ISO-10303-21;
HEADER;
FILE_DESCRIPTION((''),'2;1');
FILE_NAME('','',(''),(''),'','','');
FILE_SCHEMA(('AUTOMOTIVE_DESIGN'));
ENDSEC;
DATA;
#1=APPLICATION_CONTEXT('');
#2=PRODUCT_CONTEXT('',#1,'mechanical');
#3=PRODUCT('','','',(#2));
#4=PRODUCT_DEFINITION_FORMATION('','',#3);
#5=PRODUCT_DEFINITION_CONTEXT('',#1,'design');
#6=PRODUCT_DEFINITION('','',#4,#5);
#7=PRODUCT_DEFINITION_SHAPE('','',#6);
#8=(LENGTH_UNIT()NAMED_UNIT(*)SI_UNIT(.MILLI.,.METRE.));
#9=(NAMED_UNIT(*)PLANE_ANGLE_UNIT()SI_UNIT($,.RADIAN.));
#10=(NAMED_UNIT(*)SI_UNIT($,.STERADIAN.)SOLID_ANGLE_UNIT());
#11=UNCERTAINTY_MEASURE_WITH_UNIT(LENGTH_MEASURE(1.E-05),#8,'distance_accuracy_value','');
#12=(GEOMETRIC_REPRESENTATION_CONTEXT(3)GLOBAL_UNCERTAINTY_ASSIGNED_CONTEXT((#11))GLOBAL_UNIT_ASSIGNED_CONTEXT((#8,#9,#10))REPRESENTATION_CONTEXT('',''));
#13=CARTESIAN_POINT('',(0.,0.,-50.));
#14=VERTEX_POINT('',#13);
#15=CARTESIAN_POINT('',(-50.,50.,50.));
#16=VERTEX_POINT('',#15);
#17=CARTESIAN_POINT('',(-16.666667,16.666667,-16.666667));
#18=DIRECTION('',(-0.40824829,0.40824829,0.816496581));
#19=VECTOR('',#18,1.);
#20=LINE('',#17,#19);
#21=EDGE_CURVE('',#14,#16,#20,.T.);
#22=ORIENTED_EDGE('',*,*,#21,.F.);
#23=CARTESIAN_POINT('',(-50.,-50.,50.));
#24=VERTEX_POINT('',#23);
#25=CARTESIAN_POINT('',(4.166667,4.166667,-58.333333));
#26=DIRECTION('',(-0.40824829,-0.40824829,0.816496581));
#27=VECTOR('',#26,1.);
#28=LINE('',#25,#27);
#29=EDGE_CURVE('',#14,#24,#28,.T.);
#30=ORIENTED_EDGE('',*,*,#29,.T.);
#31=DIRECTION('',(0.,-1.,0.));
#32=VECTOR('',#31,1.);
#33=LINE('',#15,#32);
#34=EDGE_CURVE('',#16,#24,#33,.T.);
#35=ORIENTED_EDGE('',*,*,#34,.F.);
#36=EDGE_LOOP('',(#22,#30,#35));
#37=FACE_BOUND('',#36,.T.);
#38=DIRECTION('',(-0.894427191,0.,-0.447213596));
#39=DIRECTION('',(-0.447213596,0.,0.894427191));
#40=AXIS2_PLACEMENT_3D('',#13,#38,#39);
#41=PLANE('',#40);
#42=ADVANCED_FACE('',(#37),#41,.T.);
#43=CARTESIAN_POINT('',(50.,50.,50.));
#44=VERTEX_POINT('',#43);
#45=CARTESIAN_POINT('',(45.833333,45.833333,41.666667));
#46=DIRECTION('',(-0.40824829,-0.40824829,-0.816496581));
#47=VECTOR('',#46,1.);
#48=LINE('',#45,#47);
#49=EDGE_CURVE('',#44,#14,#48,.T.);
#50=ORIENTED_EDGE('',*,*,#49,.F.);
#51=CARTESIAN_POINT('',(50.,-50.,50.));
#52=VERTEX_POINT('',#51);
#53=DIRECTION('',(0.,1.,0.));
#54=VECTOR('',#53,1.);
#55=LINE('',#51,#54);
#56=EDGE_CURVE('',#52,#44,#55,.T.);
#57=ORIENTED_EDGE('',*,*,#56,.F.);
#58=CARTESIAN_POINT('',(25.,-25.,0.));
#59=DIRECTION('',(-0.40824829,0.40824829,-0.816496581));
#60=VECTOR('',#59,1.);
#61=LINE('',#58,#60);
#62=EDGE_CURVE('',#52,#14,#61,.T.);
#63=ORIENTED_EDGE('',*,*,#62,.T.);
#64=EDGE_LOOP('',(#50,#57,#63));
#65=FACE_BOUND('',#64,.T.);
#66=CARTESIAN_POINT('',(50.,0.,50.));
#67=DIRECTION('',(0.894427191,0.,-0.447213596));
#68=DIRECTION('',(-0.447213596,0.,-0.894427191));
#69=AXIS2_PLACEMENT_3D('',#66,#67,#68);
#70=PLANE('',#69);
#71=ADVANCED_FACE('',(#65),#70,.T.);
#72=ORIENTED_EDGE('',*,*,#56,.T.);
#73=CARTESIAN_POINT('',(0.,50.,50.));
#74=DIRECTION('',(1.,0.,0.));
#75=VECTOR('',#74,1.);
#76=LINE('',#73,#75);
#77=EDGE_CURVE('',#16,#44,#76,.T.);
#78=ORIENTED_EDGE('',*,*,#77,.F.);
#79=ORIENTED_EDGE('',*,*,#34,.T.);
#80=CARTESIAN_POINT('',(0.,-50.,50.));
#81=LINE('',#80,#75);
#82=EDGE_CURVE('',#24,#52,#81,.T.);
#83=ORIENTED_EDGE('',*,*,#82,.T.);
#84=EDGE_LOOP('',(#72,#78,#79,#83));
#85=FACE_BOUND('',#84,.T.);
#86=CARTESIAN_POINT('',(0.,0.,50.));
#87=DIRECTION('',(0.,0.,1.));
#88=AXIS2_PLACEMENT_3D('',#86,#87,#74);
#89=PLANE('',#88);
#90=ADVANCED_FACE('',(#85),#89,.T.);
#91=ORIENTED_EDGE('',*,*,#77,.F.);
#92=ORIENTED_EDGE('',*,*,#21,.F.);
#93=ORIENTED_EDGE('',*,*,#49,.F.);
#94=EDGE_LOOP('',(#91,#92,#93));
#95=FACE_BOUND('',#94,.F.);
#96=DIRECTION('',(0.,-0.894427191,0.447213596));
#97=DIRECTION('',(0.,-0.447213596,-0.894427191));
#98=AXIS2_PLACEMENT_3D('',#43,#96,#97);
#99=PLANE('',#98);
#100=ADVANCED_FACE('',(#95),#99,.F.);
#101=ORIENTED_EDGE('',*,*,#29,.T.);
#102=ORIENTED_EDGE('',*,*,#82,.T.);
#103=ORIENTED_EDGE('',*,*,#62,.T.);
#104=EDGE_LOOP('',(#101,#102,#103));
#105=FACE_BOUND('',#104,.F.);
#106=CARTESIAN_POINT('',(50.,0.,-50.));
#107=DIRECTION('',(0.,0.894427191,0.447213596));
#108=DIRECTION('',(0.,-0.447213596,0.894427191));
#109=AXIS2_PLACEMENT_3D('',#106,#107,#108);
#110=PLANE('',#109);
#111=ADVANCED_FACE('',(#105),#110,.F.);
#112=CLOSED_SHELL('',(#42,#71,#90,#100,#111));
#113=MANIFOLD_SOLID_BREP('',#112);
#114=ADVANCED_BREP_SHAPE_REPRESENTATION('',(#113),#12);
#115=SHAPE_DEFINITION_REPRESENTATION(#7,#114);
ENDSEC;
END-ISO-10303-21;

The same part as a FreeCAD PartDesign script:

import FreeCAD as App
import Part
import Sketcher

V = App.Vector
Q = App.Units.Quantity

doc = App.newDocument("Part")
params = doc.addObject("Spreadsheet::Sheet", "Params")
for row, (alias, value) in enumerate([
    ("sketch1_width", "100 mm"),
    ("pad1_length", "100 mm"),
    ("sketch2_width", "50 mm"),
    ("sketch2_height", "100 mm"),
    ("sketch3_width", "50 mm"),
    ("sketch3_height", "100 mm"),
], start=1):
    params.set(f"A{row}", alias)
    params.set(f"B{row}", "=" + value)
    params.setAlias(f"B{row}", alias)

body = doc.addObject("PartDesign::Body", "Body")

# Sketch on XY plane
sketch1 = body.newObject("Sketcher::SketchObject", "Sketch")
sketch1.AttachmentSupport = (doc.getObject("XY_Plane"), [""])
sketch1.MapMode = "FlatFace"
sketch1.addGeometry([
    Part.LineSegment(V(-50, 50, 0), V(-50, -50, 0)),
    Part.LineSegment(V(-50, -50, 0), V(50, -50, 0)),
    Part.LineSegment(V(50, -50, 0), V(50, 50, 0)),
    Part.LineSegment(V(50, 50, 0), V(-50, 50, 0)),
], False)
sketch1.addConstraint([
    Sketcher.Constraint("Coincident", 0, 2, 1, 1),
    Sketcher.Constraint("Coincident", 1, 2, 2, 1),
    Sketcher.Constraint("Coincident", 2, 2, 3, 1),
    Sketcher.Constraint("Coincident", 3, 2, 0, 1),
    Sketcher.Constraint("Vertical", 0),
    Sketcher.Constraint("Horizontal", 1),
    Sketcher.Constraint("Vertical", 2),
    Sketcher.Constraint("Horizontal", 3),
    Sketcher.Constraint("Symmetric", 0, 2, 2, 2, -1, 1),
    Sketcher.Constraint("Equal", 3, 0),
    Sketcher.Constraint("DistanceX", 1, 1, 1, 2, Q("100 mm")),
])
sketch1.setExpression("Constraints[10]", "Params.sketch1_width")
pad1 = body.newObject("PartDesign::Pad", "Pad")
pad1.Profile = sketch1
pad1.setExpression("Length", "Params.pad1_length")
pad1.Midplane = True

# Sketch on YZ plane
sketch2 = body.newObject("Sketcher::SketchObject", "Sketch001")
sketch2.AttachmentSupport = (doc.getObject("YZ_Plane"), [""])
sketch2.MapMode = "FlatFace"
sketch2.AttachmentOffset = App.Placement(V(0, 0, 50), App.Rotation())
sketch2.addGeometry([
    Part.LineSegment(V(-50, -50, 0), V(0, -50, 0)),  # 0
    Part.LineSegment(V(0, -50, 0), V(-50, 50, 0)),  # 1
    Part.LineSegment(V(-50, 50, 0), V(-50, -50, 0)),  # 2
    Part.LineSegment(V(50, -50, 0), V(50, 50, 0)),  # 3
    Part.LineSegment(V(50, 50, 0), V(0, -50, 0)),  # 4
    Part.LineSegment(V(0, -50, 0), V(50, -50, 0)),  # 5
], False)
sketch2.addConstraint([
    Sketcher.Constraint("Coincident", 0, 2, 1, 1),
    Sketcher.Constraint("Coincident", 1, 2, 2, 1),
    Sketcher.Constraint("Coincident", 2, 2, 0, 1),
    Sketcher.Constraint("Coincident", 3, 2, 4, 1),
    Sketcher.Constraint("Coincident", 4, 2, 5, 1),
    Sketcher.Constraint("Coincident", 5, 2, 3, 1),
    Sketcher.Constraint("Horizontal", 0),
    Sketcher.Constraint("Vertical", 2),
    Sketcher.Constraint("Vertical", 3),
    Sketcher.Constraint("Horizontal", 5),
    Sketcher.Constraint("Coincident", 4, 2, 0, 2),
    Sketcher.Constraint("Symmetric", 2, 2, 3, 2, -1, 1),
    Sketcher.Constraint("PointOnObject", 0, 2, -2),
    Sketcher.Constraint("Horizontal", 1, 2, 3, 2),
    Sketcher.Constraint("DistanceX", 0, 1, 0, 2, Q("50 mm")),
    Sketcher.Constraint("DistanceY", 2, 2, 2, 1, Q("100 mm")),
])
sketch2.setExpression("Constraints[14]", "Params.sketch2_width")
sketch2.setExpression("Constraints[15]", "Params.sketch2_height")
pocket1 = body.newObject("PartDesign::Pocket", "Pocket")
pocket1.Profile = sketch2
pocket1.Type = "ThroughAll"

# Sketch on XZ plane
sketch3 = body.newObject("Sketcher::SketchObject", "Sketch002")
sketch3.AttachmentSupport = (doc.getObject("XZ_Plane"), [""])
sketch3.MapMode = "FlatFace"
sketch3.addGeometry([
    Part.LineSegment(V(50, 50, 0), V(0, -50, 0)),  # 0
    Part.LineSegment(V(0, -50, 0), V(50, -50, 0)),  # 1
    Part.LineSegment(V(50, -50, 0), V(50, 50, 0)),  # 2
    Part.LineSegment(V(0, -50, 0), V(-50, 50, 0)),  # 3
    Part.LineSegment(V(-50, 50, 0), V(-50, -50, 0)),  # 4
    Part.LineSegment(V(-50, -50, 0), V(0, -50, 0)),  # 5
], False)
sketch3.addConstraint([
    Sketcher.Constraint("Coincident", 0, 2, 1, 1),
    Sketcher.Constraint("Coincident", 1, 2, 2, 1),
    Sketcher.Constraint("Coincident", 2, 2, 0, 1),
    Sketcher.Constraint("Coincident", 3, 2, 4, 1),
    Sketcher.Constraint("Coincident", 4, 2, 5, 1),
    Sketcher.Constraint("Coincident", 5, 2, 3, 1),
    Sketcher.Constraint("Horizontal", 1),
    Sketcher.Constraint("Vertical", 2),
    Sketcher.Constraint("Vertical", 4),
    Sketcher.Constraint("Horizontal", 5),
    Sketcher.Constraint("Coincident", 5, 2, 0, 2),
    Sketcher.Constraint("Symmetric", 1, 2, 3, 2, -1, 1),
    Sketcher.Constraint("PointOnObject", 0, 2, -2),
    Sketcher.Constraint("Horizontal", 2, 2, 3, 2),
    Sketcher.Constraint("DistanceX", 1, 1, 1, 2, Q("50 mm")),
    Sketcher.Constraint("DistanceY", 2, 1, 2, 2, Q("100 mm")),
])
sketch3.setExpression("Constraints[14]", "Params.sketch3_width")
sketch3.setExpression("Constraints[15]", "Params.sketch3_height")
pocket2 = body.newObject("PartDesign::Pocket", "Pocket001")
pocket2.Profile = sketch3
pocket2.Type = "ThroughAll"
pocket2.Midplane = True

doc.recompute()
